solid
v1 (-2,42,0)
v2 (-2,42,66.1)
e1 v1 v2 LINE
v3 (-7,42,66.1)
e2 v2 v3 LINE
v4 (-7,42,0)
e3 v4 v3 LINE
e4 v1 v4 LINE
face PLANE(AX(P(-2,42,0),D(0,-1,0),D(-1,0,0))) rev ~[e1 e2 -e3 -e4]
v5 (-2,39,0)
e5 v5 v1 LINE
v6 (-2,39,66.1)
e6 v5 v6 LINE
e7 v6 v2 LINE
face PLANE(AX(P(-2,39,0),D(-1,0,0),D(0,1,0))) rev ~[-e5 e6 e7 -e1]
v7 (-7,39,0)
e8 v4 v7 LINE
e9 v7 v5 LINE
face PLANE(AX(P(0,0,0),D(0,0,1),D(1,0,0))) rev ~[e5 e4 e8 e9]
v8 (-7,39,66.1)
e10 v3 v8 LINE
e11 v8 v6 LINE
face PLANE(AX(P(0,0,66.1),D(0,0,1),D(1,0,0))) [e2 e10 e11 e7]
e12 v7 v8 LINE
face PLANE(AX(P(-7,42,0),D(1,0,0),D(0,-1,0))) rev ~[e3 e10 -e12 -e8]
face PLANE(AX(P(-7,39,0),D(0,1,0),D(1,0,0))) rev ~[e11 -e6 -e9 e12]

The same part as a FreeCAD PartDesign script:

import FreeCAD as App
import Part
import Sketcher
from FreeCAD import Vector
Q = App.Units.Quantity

doc = App.newDocument("Part")
body = doc.addObject("PartDesign::Body", "Body")

# Sketch on XY plane
sketch1 = body.newObject("Sketcher::SketchObject", "Sketch")
sketch1.AttachmentSupport = (doc.getObject("XY_Plane"), [""])
sketch1.MapMode = "FlatFace"
sketch1.addGeometry([
    Part.LineSegment(Vector(-7, 42, 0), Vector(-7, 39, 0)),
    Part.LineSegment(Vector(-7, 39, 0), Vector(-2, 39, 0)),
    Part.LineSegment(Vector(-2, 39, 0), Vector(-2, 42, 0)),
    Part.LineSegment(Vector(-2, 42, 0), Vector(-7, 42, 0)),
], False)
sketch1.addConstraint([
    Sketcher.Constraint("Coincident", 0, 2, 1, 1),
    Sketcher.Constraint("Coincident", 1, 2, 2, 1),
    Sketcher.Constraint("Coincident", 2, 2, 3, 1),
    Sketcher.Constraint("Coincident", 3, 2, 0, 1),
    Sketcher.Constraint("Vertical", 0),
    Sketcher.Constraint("Horizontal", 1),
    Sketcher.Constraint("Vertical", 2),
    Sketcher.Constraint("Horizontal", 3),
    Sketcher.Constraint("DistanceX", 1, 1, 1, 2, Q("5 mm")),
    Sketcher.Constraint("DistanceY", 0, 2, 0, 1, Q("3 mm")),
    Sketcher.Constraint("DistanceX", 0, 2, -1, 1, Q("7 mm")),
    Sketcher.Constraint("DistanceY", -1, 1, 0, 2, Q("39 mm")),
])
pad1 = body.newObject("PartDesign::Pad", "Pad")
pad1.Profile = sketch1
pad1.Length = 66.1

doc.recompute()
